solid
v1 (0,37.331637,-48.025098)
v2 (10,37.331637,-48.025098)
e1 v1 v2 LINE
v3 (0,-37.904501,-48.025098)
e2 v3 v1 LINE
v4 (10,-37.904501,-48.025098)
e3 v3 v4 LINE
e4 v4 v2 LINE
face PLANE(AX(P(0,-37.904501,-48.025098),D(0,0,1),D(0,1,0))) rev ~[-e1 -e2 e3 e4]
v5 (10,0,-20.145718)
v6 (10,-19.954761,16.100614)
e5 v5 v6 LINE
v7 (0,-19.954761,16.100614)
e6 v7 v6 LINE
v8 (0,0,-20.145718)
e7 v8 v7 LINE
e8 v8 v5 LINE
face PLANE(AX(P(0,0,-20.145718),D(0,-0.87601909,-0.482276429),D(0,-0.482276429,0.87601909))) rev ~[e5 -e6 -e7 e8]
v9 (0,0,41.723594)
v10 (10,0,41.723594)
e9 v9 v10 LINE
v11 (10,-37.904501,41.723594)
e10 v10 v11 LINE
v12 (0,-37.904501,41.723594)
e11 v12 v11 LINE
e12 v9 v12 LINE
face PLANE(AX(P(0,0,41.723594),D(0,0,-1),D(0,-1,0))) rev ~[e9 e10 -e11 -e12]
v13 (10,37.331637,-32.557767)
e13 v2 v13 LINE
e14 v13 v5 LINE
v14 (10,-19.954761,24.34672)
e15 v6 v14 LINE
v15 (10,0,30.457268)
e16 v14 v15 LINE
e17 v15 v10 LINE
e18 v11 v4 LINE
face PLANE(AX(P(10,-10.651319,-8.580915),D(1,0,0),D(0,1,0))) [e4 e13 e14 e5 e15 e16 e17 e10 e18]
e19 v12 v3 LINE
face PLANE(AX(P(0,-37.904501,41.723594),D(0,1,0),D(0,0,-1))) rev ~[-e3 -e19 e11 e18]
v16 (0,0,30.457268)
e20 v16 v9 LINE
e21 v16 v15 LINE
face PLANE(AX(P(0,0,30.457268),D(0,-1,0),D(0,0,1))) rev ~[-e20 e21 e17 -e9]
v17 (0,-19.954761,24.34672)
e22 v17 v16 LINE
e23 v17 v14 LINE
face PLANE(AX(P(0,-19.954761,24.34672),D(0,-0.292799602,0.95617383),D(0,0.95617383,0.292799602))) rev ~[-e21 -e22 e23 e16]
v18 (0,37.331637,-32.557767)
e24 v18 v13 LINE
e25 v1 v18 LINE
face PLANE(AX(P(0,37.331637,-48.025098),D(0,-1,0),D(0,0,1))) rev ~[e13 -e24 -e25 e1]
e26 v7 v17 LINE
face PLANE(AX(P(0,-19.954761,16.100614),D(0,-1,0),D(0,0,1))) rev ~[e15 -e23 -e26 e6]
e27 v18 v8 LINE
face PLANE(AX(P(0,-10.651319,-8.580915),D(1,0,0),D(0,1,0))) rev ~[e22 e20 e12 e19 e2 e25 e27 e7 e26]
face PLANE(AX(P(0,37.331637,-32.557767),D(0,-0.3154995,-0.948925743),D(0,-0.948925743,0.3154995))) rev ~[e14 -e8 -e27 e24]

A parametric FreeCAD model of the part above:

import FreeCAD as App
import Part
import Sketcher
Q = App.Units.Quantity

doc = App.newDocument("Part")
body = doc.addObject("PartDesign::Body", "Body")

# Sketch on YZ plane
sketch1 = doc.addObject("Sketcher::SketchObject", "Sketch")
body.addObject(sketch1)
sketch1.AttachmentSupport = (doc.YZ_Plane, [""])
sketch1.MapMode = "FlatFace"
sketch1.addGeometry([
    Part.LineSegment(App.Vector(0, 42, 0), App.Vector(-38, 42, 0)),  # 0
    Part.LineSegment(App.Vector(-38, 42, 0), App.Vector(-38, -48, 0)),  # 1
    Part.LineSegment(App.Vector(-38, -48, 0), App.Vector(37, -48, 0)),  # 2
    Part.LineSegment(App.Vector(37, -48, 0), App.Vector(37, -33, 0)),  # 3
    Part.LineSegment(App.Vector(37, -33, 0), App.Vector(0, -20, 0)),  # 4
    Part.LineSegment(App.Vector(0, -20, 0), App.Vector(-20, 16, 0)),  # 5
    Part.LineSegment(App.Vector(-20, 16, 0), App.Vector(-20, 24, 0)),  # 6
    Part.LineSegment(App.Vector(-20, 24, 0), App.Vector(0, 30, 0)),  # 7
    Part.LineSegment(App.Vector(0, 30, 0), App.Vector(0, 42, 0)),  # 8
], False)
sketch1.addConstraint([
    Sketcher.Constraint("Coincident", 0, 2, 1, 1),
    Sketcher.Constraint("Coincident", 1, 2, 2, 1),
    Sketcher.Constraint("Coincident", 2, 2, 3, 1),
    Sketcher.Constraint("Coincident", 3, 2, 4, 1),
    Sketcher.Constraint("Coincident", 4, 2, 5, 1),
    Sketcher.Constraint("Coincident", 5, 2, 6, 1),
    Sketcher.Constraint("Coincident", 6, 2, 7, 1),
    Sketcher.Constraint("Coincident", 7, 2, 8, 1),
    Sketcher.Constraint("Coincident", 8, 2, 0, 1),
    Sketcher.Constraint("Horizontal", 0),
    Sketcher.Constraint("Vertical", 1),
    Sketcher.Constraint("Horizontal", 2),
    Sketcher.Constraint("Vertical", 3),
    Sketcher.Constraint("Vertical", 6),
    Sketcher.Constraint("Vertical", 8),
    Sketcher.Constraint("PointOnObject", 4, 2, -2),
    Sketcher.Constraint("PointOnObject", 7, 2, -2),
    Sketcher.Constraint("DistanceX", 0, 2, 0, 1, Q("37.904501 mm")),
    Sketcher.Constraint("DistanceX", 2, 1, 2, 2, Q("75.236138 mm")),
    Sketcher.Constraint("DistanceY", 3, 1, 3, 2, Q("15.467331 mm")),
    Sketcher.Constraint("DistanceX", 5, 2, 3, 2, Q("57.286398 mm")),
    Sketcher.Constraint("Distance", 5, Q("41.37619 mm")),
    Sketcher.Constraint("DistanceY", 1, 2, 1, 1, Q("89.748692 mm")),
    Sketcher.Constraint("DistanceY", 6, 1, 6, 2, Q("8.246106 mm")),
    Sketcher.Constraint("DistanceY", 8, 1, 8, 2, Q("11.266326 mm")),
    Sketcher.Constraint("DistanceY", -1, 1, 6, 2, Q("24.34672 mm")),
    Sketcher.Constraint("DistanceY", 3, 2, 4, 2, Q("12.412049 mm")),
])
pad1 = doc.addObject("PartDesign::Pad", "Pad")
body.addObject(pad1)
pad1.Profile = sketch1
pad1.Length = 10

doc.recompute()
